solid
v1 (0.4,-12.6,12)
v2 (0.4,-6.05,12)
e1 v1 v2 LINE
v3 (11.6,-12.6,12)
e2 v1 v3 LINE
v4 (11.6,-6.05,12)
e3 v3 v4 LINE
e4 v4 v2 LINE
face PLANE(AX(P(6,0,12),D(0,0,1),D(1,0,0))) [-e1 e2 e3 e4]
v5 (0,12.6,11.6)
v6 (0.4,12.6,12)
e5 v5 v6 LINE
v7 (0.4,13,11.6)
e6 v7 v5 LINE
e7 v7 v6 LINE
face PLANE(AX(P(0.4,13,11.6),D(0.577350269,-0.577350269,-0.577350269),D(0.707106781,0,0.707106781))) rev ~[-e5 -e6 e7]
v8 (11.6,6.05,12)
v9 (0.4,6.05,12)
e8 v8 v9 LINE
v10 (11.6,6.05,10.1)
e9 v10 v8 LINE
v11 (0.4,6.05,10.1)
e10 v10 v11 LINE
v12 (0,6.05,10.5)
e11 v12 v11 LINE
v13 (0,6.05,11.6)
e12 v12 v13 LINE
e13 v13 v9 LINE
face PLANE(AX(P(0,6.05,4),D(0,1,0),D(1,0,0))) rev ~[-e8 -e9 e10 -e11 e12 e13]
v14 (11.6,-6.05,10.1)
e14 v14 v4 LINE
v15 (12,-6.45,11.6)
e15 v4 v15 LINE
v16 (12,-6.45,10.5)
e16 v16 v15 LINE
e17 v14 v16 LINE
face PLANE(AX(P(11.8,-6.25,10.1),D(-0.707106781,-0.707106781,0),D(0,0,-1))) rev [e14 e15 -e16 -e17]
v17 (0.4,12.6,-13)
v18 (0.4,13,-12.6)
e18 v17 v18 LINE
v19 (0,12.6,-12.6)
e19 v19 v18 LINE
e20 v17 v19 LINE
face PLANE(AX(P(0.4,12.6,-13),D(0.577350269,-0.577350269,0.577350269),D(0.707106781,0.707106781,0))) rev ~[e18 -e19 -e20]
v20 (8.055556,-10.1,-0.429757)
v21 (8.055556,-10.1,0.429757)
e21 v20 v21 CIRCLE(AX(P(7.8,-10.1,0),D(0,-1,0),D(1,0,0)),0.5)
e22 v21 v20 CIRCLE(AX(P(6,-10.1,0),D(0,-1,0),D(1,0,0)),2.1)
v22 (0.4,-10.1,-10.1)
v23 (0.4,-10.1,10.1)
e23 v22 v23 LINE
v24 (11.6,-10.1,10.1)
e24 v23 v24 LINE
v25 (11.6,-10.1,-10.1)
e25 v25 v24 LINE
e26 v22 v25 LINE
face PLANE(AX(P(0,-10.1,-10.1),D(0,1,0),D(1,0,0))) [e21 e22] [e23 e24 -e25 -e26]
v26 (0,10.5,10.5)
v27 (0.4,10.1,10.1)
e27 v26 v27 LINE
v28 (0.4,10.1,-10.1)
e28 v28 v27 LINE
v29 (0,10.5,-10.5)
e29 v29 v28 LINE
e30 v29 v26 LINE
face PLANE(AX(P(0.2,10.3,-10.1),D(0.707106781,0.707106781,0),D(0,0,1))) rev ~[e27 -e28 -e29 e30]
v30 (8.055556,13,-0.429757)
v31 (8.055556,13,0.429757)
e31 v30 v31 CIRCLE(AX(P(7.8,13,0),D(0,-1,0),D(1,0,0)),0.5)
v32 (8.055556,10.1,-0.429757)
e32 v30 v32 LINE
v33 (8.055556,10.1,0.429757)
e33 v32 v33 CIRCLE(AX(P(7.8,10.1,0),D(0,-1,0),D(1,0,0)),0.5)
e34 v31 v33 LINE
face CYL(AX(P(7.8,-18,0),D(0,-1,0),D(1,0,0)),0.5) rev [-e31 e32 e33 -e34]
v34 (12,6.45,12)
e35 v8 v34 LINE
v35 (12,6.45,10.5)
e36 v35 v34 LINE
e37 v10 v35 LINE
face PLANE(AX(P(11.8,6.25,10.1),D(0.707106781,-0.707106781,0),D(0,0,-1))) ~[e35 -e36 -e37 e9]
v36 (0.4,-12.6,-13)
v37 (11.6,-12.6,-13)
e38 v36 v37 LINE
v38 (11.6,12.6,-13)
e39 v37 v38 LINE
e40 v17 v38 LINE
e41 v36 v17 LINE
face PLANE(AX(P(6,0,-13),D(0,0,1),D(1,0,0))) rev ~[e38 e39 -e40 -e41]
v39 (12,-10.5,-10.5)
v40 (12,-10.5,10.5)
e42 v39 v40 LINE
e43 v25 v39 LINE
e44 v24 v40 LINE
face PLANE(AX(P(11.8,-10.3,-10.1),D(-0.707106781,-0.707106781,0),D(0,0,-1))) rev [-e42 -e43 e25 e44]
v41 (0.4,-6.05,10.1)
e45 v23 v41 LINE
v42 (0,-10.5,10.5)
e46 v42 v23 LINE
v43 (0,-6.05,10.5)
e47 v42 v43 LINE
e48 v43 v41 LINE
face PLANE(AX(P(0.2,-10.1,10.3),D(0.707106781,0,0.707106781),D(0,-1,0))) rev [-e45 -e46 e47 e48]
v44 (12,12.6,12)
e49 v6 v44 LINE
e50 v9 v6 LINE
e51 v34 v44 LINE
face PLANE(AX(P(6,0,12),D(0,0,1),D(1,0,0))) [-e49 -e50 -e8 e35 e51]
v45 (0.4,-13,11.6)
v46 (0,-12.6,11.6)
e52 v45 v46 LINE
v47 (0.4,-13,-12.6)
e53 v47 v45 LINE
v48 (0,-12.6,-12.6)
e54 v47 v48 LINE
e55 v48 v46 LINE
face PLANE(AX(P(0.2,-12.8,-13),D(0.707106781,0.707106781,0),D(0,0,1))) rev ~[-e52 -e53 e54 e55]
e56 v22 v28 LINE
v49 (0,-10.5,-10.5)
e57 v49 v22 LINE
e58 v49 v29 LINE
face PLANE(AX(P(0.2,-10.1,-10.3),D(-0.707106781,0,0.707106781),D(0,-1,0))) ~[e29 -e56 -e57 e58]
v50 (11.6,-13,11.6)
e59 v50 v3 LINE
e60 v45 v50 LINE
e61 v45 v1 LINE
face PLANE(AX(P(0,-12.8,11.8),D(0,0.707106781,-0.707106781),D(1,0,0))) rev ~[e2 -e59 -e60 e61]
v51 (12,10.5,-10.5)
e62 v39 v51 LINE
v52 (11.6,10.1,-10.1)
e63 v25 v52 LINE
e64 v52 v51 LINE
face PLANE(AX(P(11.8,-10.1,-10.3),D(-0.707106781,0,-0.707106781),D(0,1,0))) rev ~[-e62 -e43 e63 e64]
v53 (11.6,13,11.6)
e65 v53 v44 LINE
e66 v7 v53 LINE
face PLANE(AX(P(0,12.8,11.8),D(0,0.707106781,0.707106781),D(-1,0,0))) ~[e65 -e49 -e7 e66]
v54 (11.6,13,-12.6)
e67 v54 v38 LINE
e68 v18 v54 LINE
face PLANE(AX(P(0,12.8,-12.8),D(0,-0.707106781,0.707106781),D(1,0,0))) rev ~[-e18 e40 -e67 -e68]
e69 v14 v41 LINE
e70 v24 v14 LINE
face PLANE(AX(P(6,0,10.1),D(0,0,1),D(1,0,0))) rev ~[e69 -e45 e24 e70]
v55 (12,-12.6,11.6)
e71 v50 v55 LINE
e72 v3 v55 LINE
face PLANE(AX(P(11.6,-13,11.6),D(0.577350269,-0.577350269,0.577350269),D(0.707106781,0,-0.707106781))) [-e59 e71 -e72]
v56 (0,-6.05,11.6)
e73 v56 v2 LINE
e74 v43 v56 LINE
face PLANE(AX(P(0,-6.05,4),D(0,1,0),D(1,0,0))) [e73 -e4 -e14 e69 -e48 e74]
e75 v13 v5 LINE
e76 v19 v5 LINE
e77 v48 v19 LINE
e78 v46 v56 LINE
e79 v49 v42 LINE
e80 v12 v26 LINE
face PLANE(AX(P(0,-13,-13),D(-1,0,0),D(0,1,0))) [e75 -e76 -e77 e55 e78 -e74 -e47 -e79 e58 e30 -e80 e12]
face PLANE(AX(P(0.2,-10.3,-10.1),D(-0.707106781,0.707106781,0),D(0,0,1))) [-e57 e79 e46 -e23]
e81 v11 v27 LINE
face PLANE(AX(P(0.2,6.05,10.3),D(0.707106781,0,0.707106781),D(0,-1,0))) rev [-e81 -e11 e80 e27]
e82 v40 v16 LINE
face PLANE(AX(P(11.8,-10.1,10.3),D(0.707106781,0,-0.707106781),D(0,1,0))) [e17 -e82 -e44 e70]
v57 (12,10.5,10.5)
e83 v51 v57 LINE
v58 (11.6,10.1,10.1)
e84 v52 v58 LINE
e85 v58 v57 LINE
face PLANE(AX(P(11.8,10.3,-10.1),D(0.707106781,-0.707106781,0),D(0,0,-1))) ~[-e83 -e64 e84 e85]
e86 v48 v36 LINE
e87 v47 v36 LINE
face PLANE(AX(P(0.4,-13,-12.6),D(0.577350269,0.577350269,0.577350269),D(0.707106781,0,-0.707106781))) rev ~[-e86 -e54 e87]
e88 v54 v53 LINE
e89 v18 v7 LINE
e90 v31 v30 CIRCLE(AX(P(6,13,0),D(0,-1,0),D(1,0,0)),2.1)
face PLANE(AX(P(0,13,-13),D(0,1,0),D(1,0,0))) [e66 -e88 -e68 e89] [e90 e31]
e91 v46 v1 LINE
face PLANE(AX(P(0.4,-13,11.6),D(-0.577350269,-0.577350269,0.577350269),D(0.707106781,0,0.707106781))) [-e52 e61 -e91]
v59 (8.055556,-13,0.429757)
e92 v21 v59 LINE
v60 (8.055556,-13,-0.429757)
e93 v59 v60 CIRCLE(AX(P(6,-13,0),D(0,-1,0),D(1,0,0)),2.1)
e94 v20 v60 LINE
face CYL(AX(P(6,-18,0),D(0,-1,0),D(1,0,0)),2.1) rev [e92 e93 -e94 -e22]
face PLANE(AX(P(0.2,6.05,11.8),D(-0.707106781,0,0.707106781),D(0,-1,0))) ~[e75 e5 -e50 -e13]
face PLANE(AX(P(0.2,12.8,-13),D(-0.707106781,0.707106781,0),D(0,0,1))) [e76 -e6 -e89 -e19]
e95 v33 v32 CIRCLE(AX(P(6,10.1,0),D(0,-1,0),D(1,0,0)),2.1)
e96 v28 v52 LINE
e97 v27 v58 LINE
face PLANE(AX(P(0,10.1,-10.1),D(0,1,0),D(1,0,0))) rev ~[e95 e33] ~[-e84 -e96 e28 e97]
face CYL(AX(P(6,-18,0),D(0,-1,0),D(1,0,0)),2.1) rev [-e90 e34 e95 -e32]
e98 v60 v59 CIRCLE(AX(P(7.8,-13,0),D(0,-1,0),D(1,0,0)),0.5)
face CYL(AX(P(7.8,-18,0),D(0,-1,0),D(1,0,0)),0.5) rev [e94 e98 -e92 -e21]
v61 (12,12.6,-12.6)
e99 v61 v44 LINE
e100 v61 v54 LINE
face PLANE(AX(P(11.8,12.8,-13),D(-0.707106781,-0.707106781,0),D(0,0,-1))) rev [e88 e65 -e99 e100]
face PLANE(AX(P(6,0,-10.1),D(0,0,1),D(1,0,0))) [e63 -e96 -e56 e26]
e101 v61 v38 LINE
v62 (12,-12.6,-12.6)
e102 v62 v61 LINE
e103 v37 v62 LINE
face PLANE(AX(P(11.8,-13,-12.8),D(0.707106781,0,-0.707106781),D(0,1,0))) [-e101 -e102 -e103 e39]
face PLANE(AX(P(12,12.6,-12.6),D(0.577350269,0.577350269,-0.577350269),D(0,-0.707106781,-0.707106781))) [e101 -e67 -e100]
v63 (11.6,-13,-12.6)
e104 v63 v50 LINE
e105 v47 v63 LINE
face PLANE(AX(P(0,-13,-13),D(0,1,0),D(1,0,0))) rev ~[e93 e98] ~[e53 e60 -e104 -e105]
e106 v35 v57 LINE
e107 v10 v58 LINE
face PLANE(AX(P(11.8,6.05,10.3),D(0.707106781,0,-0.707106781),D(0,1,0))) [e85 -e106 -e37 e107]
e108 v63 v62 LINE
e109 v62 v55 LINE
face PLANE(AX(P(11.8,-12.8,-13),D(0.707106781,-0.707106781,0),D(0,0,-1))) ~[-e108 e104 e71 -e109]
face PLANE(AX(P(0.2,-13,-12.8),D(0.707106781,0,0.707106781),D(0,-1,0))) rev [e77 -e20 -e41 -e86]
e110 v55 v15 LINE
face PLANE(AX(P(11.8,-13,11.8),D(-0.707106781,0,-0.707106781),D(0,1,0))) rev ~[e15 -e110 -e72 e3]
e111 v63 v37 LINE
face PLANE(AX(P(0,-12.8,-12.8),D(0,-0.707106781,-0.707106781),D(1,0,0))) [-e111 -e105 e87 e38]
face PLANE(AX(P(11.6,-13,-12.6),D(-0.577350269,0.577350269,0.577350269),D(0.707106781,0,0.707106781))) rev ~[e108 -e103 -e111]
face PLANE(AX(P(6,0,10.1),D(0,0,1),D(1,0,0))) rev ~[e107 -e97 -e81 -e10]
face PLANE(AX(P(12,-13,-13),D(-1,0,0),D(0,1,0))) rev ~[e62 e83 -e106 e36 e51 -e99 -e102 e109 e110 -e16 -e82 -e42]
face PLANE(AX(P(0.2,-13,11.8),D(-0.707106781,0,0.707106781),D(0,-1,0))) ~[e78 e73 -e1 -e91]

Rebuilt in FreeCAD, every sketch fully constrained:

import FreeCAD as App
import Part
import Sketcher


def edges_at(feature, points):
    """Names of the edges that pass closest to the given points."""
    edges = feature.Shape.Edges
    near = lambda p: min(range(len(edges)), key=lambda i: edges[i].distToShape(Part.Vertex(*p))[0])
    return sorted({f"Edge{near(p) + 1}" for p in points})

doc = App.newDocument("Part")
body = doc.addObject("PartDesign::Body", "Body")

# Sketch on XZ plane
sketch1 = body.newObject("Sketcher::SketchObject", "Sketch")
sketch1.AttachmentSupport = (doc.getObject("XZ_Plane"), [""])
sketch1.MapMode = "FlatFace"
sketch1.AttachmentOffset = App.Placement(App.Vector(0, 0, 18), App.Rotation())
sketch1.addGeometry(Part.Circle(App.Vector(7.8, 0, 0), App.Vector(0, 0, 1), 0.5), False)
sketch1.addConstraint(Sketcher.Constraint("PointOnObject", 0, 3, -1))
sketch1.addConstraint(Sketcher.Constraint("Diameter", 0, 1.0))
sketch1.addConstraint(Sketcher.Constraint("DistanceX", -1, 1, 0, 3, 7.8))
pad1 = body.newObject("PartDesign::Pad", "Pad")
pad1.Profile = sketch1
pad1.Length = 38
pad1.Reversed = True
body2 = doc.addObject("PartDesign::Body", "Body001")

# Sketch on XZ plane
sketch2 = body2.newObject("Sketcher::SketchObject", "Sketch001")
sketch2.AttachmentSupport = (doc.getObject("XZ_Plane001"), [""])
sketch2.MapMode = "FlatFace"
sketch2.AttachmentOffset = App.Placement(App.Vector(0, 0, 18), App.Rotation())
sketch2.addGeometry(Part.Circle(App.Vector(6, 0, 0), App.Vector(0, 0, 1), 2.1), False)
sketch2.addConstraint(Sketcher.Constraint("PointOnObject", 0, 3, -1))
sketch2.addConstraint(Sketcher.Constraint("Diameter", 0, 4.2))
sketch2.addConstraint(Sketcher.Constraint("DistanceX", -1, 1, 0, 3, 6.0))
pad2 = body2.newObject("PartDesign::Pad", "Pad001")
pad2.Profile = sketch2
pad2.Length = 38
pad2.Reversed = True
doc.recompute()

boolean = body2.newObject("PartDesign::Boolean", "Boolean")
boolean.Type = "Fuse"
boolean.addObjects([body])
body3 = doc.addObject("PartDesign::Body", "Body002")

# Sketch on XY plane
sketch3 = body3.newObject("Sketcher::SketchObject", "Sketch002")
sketch3.AttachmentSupport = (doc.getObject("XY_Plane002"), [""])
sketch3.MapMode = "FlatFace"
sketch3.AttachmentOffset = App.Placement(App.Vector(0, 0, 4), App.Rotation())
sketch3.addGeometry(Part.LineSegment(App.Vector(0, 6.05, 0), App.Vector(0, -6.05, 0)), False)
sketch3.addGeometry(Part.LineSegment(App.Vector(0, -6.05, 0), App.Vector(12, -6.05, 0)), False)
sketch3.addGeometry(Part.LineSegment(App.Vector(12, -6.05, 0), App.Vector(12, 6.05, 0)), False)
sketch3.addGeometry(Part.LineSegment(App.Vector(12, 6.05, 0), App.Vector(0, 6.05, 0)), False)
sketch3.addConstraint(Sketcher.Constraint("Coincident", 0, 2, 1, 1))
sketch3.addConstraint(Sketcher.Constraint("Coincident", 1, 2, 2, 1))
sketch3.addConstraint(Sketcher.Constraint("Coincident", 2, 2, 3, 1))
sketch3.addConstraint(Sketcher.Constraint("Coincident", 3, 2, 0, 1))
sketch3.addConstraint(Sketcher.Constraint("Vertical", 0))
sketch3.addConstraint(Sketcher.Constraint("Horizontal", 1))
sketch3.addConstraint(Sketcher.Constraint("Vertical", 2))
sketch3.addConstraint(Sketcher.Constraint("Horizontal", 3))
sketch3.addConstraint(Sketcher.Constraint("Symmetric", 0, 2, 3, 2, -1, 1))
sketch3.addConstraint(Sketcher.Constraint("DistanceX", 1, 1, 1, 2, 12.0))
sketch3.addConstraint(Sketcher.Constraint("DistanceY", 0, 2, 0, 1, 12.1))
pad3 = body3.newObject("PartDesign::Pad", "Pad002")
pad3.Profile = sketch3
pad3.Length = 10
body4 = doc.addObject("PartDesign::Body", "Body003")

# Sketch on XY plane
sketch4 = body4.newObject("Sketcher::SketchObject", "Sketch003")
sketch4.AttachmentSupport = (doc.getObject("XY_Plane003"), [""])
sketch4.MapMode = "FlatFace"
sketch4.AttachmentOffset = App.Placement(App.Vector(0, 0, -10.1), App.Rotation())
sketch4.addGeometry(Part.LineSegment(App.Vector(0, 10.1, 0), App.Vector(0, -10.1, 0)), False)
sketch4.addGeometry(Part.LineSegment(App.Vector(0, -10.1, 0), App.Vector(12, -10.1, 0)), False)
sketch4.addGeometry(Part.LineSegment(App.Vector(12, -10.1, 0), App.Vector(12, 10.1, 0)), False)
sketch4.addGeometry(Part.LineSegment(App.Vector(12, 10.1, 0), App.Vector(0, 10.1, 0)), False)
sketch4.addConstraint(Sketcher.Constraint("Coincident", 0, 2, 1, 1))
sketch4.addConstraint(Sketcher.Constraint("Coincident", 1, 2, 2, 1))
sketch4.addConstraint(Sketcher.Constraint("Coincident", 2, 2, 3, 1))
sketch4.addConstraint(Sketcher.Constraint("Coincident", 3, 2, 0, 1))
sketch4.addConstraint(Sketcher.Constraint("Vertical", 0))
sketch4.addConstraint(Sketcher.Constraint("Horizontal", 1))
sketch4.addConstraint(Sketcher.Constraint("Vertical", 2))
sketch4.addConstraint(Sketcher.Constraint("Horizontal", 3))
sketch4.addConstraint(Sketcher.Constraint("Symmetric", 0, 2, 3, 2, -1, 1))
sketch4.addConstraint(Sketcher.Constraint("DistanceX", 1, 1, 1, 2, 12.0))
sketch4.addConstraint(Sketcher.Constraint("DistanceY", 0, 2, 0, 1, 20.2))
pad4 = body4.newObject("PartDesign::Pad", "Pad003")
pad4.Profile = sketch4
pad4.Length = 20.2
body5 = doc.addObject("PartDesign::Body", "Body004")

# Sketch on XY plane
sketch5 = body5.newObject("Sketcher::SketchObject", "Sketch004")
sketch5.AttachmentSupport = (doc.getObject("XY_Plane004"), [""])
sketch5.MapMode = "FlatFace"
sketch5.AttachmentOffset = App.Placement(App.Vector(0, 0, -13), App.Rotation())
sketch5.addGeometry(Part.LineSegment(App.Vector(0, 13, 0), App.Vector(0, -13, 0)), False)
sketch5.addGeometry(Part.LineSegment(App.Vector(0, -13, 0), App.Vector(12, -13, 0)), False)
sketch5.addGeometry(Part.LineSegment(App.Vector(12, -13, 0), App.Vector(12, 13, 0)), False)
sketch5.addGeometry(Part.LineSegment(App.Vector(12, 13, 0), App.Vector(0, 13, 0)), False)
sketch5.addConstraint(Sketcher.Constraint("Coincident", 0, 2, 1, 1))
sketch5.addConstraint(Sketcher.Constraint("Coincident", 1, 2, 2, 1))
sketch5.addConstraint(Sketcher.Constraint("Coincident", 2, 2, 3, 1))
sketch5.addConstraint(Sketcher.Constraint("Coincident", 3, 2, 0, 1))
sketch5.addConstraint(Sketcher.Constraint("Vertical", 0))
sketch5.addConstraint(Sketcher.Constraint("Horizontal", 1))
sketch5.addConstraint(Sketcher.Constraint("Vertical", 2))
sketch5.addConstraint(Sketcher.Constraint("Horizontal", 3))
sketch5.addConstraint(Sketcher.Constraint("Symmetric", 0, 2, 3, 2, -1, 1))
sketch5.addConstraint(Sketcher.Constraint("DistanceX", 1, 1, 1, 2, 12.0))
sketch5.addConstraint(Sketcher.Constraint("DistanceY", 0, 2, 0, 1, 26.0))
pad5 = body5.newObject("PartDesign::Pad", "Pad004")
pad5.Profile = sketch5
pad5.Length = 25
doc.recompute()

boolean2 = body5.newObject("PartDesign::Boolean", "Boolean001")
boolean2.Type = "Cut"
boolean2.addObjects([body4])
doc.recompute()

boolean3 = body5.newObject("PartDesign::Boolean", "Boolean002")
boolean3.Type = "Cut"
boolean3.addObjects([body3])
doc.recompute()

boolean4 = body5.newObject("PartDesign::Boolean", "Boolean003")
boolean4.Type = "Cut"
boolean4.addObjects([body2])
doc.recompute()

chamfer = body5.newObject("PartDesign::Chamfer", "Chamfer")
chamfer.Base = (boolean4, edges_at(boolean4, [
    (0, -9.525, 12),
    (0, -8.075, 10.1),
    (0, -10.1, 0),
    (0, 0, -10.1),
    (0, 10.1, 0),
    (0, 8.075, 10.1),
    (0, 9.525, 12),
    (0, 13, -0.5),
    (0, 0, -13),
    (0, -13, -0.5),
    (12, -9.525, 12),
    (6, -13, 12),
    (12, -6.05, 11.05),
    (12, -8.075, 10.1),
    (12, -10.1, 0),
    (12, 0, -10.1),
    (12, 10.1, 0),
    (12, 8.075, 10.1),
    (12, 6.05, 11.05),
    (6, 13, 12),
    (6, 13, -13),
    (12, 13, -0.5),
    (12, 0, -13),
    (6, -13, -13),
    (12, -13, -0.5),
]))
chamfer.Size = 0.4

doc.recompute()
